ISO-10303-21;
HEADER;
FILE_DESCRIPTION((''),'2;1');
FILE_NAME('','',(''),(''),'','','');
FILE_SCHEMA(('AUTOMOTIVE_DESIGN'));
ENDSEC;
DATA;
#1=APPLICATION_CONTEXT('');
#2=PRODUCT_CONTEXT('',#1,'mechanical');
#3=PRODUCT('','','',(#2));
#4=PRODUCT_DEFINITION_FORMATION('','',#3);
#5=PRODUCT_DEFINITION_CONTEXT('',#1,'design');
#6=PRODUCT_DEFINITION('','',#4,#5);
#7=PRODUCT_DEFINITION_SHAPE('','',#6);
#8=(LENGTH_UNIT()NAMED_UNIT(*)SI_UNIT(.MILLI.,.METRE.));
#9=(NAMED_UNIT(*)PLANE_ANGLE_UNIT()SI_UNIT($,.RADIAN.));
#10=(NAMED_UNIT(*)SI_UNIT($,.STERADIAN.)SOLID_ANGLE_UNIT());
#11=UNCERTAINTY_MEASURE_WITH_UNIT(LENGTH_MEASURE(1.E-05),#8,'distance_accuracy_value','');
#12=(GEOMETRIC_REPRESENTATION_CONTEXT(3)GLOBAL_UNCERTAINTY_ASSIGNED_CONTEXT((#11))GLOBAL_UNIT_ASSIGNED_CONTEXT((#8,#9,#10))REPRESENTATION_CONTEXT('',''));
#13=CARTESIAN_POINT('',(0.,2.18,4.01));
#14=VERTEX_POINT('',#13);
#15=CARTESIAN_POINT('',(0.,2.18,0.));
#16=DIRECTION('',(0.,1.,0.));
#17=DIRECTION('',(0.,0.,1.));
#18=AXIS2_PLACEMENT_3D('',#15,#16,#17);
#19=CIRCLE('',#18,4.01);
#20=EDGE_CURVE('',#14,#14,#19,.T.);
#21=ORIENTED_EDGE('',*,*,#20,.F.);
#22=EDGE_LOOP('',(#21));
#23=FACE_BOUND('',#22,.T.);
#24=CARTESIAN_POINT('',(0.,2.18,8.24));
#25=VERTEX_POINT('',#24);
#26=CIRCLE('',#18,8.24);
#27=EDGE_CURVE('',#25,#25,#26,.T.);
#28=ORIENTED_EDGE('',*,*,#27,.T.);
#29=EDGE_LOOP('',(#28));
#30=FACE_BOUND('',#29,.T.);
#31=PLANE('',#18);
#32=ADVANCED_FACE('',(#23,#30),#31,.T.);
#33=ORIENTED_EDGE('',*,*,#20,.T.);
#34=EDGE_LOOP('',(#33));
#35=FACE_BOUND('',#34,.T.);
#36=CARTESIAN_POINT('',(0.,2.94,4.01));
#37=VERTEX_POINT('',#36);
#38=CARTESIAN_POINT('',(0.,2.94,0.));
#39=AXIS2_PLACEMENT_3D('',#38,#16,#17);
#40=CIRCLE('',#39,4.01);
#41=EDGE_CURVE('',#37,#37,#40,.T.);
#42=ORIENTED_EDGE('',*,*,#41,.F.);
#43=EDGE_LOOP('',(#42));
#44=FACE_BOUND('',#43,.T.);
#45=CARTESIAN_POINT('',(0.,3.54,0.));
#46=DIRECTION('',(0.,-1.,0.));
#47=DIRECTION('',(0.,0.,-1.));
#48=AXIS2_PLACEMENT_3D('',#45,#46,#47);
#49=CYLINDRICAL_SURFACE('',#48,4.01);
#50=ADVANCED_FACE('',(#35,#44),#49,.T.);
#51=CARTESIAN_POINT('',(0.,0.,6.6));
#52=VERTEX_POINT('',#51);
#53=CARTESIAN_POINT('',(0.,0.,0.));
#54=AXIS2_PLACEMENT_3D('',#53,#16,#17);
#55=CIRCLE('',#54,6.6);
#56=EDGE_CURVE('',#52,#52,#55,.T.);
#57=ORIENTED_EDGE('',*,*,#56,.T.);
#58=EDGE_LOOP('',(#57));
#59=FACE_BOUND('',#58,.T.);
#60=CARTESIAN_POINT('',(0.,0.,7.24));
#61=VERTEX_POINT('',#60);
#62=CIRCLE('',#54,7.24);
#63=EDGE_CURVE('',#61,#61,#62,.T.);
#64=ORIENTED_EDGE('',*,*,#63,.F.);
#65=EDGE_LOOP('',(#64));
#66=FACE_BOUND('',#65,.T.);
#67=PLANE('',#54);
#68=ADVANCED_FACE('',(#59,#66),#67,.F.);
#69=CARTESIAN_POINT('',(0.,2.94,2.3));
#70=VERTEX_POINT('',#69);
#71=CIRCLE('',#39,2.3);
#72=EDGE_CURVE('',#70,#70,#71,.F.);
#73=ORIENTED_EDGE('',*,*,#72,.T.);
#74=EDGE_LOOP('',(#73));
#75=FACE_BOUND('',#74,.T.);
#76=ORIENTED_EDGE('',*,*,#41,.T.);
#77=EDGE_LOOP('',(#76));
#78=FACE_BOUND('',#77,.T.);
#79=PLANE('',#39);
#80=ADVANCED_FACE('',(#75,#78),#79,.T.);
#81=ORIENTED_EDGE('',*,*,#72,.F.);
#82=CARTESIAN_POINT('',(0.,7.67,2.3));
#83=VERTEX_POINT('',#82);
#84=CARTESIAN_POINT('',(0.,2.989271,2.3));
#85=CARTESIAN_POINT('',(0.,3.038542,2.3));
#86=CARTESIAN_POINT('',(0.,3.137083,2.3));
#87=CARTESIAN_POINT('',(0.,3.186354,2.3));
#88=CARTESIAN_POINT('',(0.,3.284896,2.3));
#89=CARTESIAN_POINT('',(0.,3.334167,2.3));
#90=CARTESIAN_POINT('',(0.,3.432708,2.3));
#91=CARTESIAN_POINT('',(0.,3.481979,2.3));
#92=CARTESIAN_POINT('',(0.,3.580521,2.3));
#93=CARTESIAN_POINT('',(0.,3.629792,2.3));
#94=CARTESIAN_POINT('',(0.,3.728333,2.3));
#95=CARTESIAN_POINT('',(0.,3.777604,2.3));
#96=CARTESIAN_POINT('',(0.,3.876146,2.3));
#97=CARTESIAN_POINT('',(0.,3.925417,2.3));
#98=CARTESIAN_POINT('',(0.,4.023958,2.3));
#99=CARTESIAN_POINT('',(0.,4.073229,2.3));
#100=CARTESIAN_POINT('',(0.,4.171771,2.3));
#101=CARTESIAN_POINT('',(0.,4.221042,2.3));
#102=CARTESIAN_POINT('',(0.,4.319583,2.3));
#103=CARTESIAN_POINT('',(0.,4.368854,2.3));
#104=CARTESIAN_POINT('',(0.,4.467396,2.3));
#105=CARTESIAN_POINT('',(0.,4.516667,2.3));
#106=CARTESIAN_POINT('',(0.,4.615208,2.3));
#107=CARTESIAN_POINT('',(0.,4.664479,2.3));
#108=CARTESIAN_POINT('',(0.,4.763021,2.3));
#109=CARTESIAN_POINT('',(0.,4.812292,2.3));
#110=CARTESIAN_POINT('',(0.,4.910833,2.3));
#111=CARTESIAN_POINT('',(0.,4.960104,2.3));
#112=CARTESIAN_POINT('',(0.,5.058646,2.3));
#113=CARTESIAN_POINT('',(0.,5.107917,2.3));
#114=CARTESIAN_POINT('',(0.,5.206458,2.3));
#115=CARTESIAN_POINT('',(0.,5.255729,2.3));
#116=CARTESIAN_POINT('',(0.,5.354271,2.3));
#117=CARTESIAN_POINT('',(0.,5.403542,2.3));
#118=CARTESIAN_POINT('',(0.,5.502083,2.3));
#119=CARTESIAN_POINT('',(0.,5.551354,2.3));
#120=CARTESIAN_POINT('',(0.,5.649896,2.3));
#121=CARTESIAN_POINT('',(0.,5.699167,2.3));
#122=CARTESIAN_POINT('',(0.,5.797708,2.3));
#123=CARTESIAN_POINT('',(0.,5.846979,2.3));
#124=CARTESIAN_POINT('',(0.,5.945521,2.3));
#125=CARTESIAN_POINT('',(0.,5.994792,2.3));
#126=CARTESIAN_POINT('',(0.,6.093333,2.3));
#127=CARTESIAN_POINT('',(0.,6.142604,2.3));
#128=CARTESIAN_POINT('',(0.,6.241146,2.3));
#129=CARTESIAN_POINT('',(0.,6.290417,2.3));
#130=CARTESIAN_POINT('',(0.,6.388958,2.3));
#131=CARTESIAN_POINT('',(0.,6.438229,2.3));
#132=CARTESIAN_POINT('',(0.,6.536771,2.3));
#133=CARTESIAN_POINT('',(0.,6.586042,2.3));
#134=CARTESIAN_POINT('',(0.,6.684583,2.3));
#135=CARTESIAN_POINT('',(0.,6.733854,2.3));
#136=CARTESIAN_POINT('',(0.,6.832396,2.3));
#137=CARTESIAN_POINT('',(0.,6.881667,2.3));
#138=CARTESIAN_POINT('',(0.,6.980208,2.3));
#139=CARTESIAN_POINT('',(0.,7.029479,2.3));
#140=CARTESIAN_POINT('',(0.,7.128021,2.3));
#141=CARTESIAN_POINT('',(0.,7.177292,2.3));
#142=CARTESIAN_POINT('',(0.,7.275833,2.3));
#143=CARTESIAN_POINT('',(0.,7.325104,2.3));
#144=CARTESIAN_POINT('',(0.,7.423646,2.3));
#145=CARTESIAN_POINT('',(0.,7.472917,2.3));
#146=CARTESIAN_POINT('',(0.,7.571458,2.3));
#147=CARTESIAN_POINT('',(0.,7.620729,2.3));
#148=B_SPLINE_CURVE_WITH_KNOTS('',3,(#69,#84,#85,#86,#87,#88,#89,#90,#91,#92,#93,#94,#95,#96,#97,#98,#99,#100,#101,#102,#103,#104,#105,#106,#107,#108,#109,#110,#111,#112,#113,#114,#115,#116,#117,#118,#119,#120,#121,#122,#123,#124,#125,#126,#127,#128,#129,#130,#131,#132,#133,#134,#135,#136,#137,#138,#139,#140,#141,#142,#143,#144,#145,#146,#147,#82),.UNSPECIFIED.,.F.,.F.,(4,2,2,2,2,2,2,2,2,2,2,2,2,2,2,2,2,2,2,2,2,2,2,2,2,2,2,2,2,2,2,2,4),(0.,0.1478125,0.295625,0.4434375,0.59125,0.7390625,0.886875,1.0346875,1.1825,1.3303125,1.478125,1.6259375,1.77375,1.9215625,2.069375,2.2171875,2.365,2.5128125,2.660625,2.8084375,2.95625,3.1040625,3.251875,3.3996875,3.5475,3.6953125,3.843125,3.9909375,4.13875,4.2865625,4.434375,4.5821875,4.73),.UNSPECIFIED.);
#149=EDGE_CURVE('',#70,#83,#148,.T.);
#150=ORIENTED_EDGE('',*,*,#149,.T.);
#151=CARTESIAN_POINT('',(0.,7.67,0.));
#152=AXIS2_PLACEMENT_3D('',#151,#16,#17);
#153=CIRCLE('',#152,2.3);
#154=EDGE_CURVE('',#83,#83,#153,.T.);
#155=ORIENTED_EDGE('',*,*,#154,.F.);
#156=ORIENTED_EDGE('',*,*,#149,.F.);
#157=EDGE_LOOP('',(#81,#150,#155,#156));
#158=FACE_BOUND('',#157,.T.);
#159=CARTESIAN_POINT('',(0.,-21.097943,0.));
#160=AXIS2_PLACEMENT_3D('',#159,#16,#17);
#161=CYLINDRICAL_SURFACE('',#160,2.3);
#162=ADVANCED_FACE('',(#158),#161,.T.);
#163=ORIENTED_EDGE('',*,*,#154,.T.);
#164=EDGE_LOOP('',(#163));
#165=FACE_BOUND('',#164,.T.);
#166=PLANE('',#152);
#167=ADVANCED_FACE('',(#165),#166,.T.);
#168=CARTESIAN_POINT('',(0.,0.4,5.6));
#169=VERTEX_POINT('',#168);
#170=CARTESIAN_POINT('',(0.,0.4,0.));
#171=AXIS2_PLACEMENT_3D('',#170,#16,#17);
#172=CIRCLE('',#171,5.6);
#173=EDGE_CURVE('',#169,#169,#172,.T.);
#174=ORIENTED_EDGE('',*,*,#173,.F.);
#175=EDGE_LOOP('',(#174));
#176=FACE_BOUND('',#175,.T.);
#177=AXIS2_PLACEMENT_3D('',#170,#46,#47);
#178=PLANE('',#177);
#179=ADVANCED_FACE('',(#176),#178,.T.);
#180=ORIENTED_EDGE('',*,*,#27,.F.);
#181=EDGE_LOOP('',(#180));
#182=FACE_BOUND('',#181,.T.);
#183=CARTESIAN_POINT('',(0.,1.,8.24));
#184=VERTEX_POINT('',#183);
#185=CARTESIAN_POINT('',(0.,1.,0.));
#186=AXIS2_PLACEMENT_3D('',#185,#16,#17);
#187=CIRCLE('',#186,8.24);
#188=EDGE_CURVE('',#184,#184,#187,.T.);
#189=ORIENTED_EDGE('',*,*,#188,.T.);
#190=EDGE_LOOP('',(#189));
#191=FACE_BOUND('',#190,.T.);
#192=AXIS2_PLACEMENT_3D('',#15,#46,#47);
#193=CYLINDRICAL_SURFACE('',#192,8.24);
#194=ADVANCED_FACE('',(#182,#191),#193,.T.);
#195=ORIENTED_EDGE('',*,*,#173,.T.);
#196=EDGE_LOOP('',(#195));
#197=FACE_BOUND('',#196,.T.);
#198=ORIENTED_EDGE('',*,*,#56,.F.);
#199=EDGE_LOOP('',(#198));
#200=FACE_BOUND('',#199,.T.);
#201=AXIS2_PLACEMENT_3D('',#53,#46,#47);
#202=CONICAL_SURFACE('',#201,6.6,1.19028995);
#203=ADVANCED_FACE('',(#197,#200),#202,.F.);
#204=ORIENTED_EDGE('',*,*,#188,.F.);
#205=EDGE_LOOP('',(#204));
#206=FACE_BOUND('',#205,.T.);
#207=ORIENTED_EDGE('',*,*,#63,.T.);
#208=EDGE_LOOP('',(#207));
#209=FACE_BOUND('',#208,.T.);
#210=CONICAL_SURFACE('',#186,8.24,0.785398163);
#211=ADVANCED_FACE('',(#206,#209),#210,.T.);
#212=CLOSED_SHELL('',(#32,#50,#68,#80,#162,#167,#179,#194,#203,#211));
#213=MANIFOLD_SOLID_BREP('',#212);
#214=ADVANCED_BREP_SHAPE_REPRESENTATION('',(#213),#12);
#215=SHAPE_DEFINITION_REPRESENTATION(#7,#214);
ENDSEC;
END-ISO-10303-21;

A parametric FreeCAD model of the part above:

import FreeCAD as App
import Part
import Sketcher
from FreeCAD import Vector

doc = App.newDocument("Part")
body = doc.addObject("PartDesign::Body", "Body")

sketch1 = body.newObject("Sketcher::SketchObject", "Sketch")
sketch1.AttachmentSupport = (doc.getObject("XZ_Plane"), [""])
sketch1.MapMode = "FlatFace"
sketch1.addGeometry(Part.Circle(Vector(0, 0, 0), Vector(0, 0, 1), 8.24), False)
sketch1.addConstraint(Sketcher.Constraint("Coincident", 0, 3, -1, 1))
sketch1.addConstraint(Sketcher.Constraint("Diameter", 0, 16.48))
pad1 = body.newObject("PartDesign::Pad", "Pad")
pad1.Profile = sketch1
pad1.Length = 2.18
pad1.Reversed = True

sketch2 = body.newObject("Sketcher::SketchObject", "Sketch001")
sketch2.AttachmentSupport = (doc.getObject("XZ_Plane"), [""])
sketch2.MapMode = "FlatFace"
sketch2.AttachmentOffset = App.Placement(Vector(0, 0, -2.18), App.Rotation())
sketch2.addGeometry(Part.Circle(Vector(0, 0, 0), Vector(0, 0, 1), 4.01), False)
sketch2.addConstraint(Sketcher.Constraint("Coincident", 0, 3, -1, 1))
sketch2.addConstraint(Sketcher.Constraint("Diameter", 0, 8.02))
pad2 = body.newObject("PartDesign::Pad", "Pad001")
pad2.Profile = sketch2
pad2.Length = 1.36
pad2.Reversed = True

sketch3 = body.newObject("Sketcher::SketchObject", "Sketch002")
sketch3.AttachmentSupport = (doc.getObject("XZ_Plane"), [""])
sketch3.MapMode = "FlatFace"
sketch3.AttachmentOffset = App.Placement(Vector(0, 0, -3.54), App.Rotation())
sketch3.addGeometry(Part.Circle(Vector(0, 0, 0), Vector(0, 0, 1), 2.42), False)
sketch3.addConstraint(Sketcher.Constraint("Coincident", 0, 3, -1, 1))
sketch3.addConstraint(Sketcher.Constraint("Diameter", 0, 4.84))
pad3 = body.newObject("PartDesign::Pad", "Pad002")
pad3.Profile = sketch3
pad3.Length = 4.28
pad3.Reversed = True

sketch4 = body.newObject("Sketcher::SketchObject", "Sketch003")
sketch4.AttachmentSupport = (doc.getObject("XZ_Plane"), [""])
sketch4.MapMode = "FlatFace"
sketch4.addGeometry(Part.Circle(Vector(0, 0, 0), Vector(0, 0, 1), 5.6), False)
sketch4.addConstraint(Sketcher.Constraint("Coincident", 0, 3, -1, 1))
sketch4.addConstraint(Sketcher.Constraint("Diameter", 0, 11.2))
pocket1 = body.newObject("PartDesign::Pocket", "Pocket")
pocket1.Profile = sketch4
pocket1.Length = 0.4

sketch5 = body.newObject("Sketcher::SketchObject", "Sketch004")
sketch5.AttachmentSupport = (doc.getObject("XY_Plane"), [""])
sketch5.MapMode = "FlatFace"
sketch5.addGeometry(Part.LineSegment(Vector(6.6, 0, 0), Vector(5.6, 0.4, 0)), False)
sketch5.addGeometry(Part.LineSegment(Vector(5.6, 0.4, 0), Vector(5.6, 0, 0)), False)
sketch5.addGeometry(Part.LineSegment(Vector(5.6, 0, 0), Vector(6.6, 0, 0)), False)
sketch5.addConstraint(Sketcher.Constraint("Coincident", 0, 2, 1, 1))
sketch5.addConstraint(Sketcher.Constraint("Coincident", 1, 2, 2, 1))
sketch5.addConstraint(Sketcher.Constraint("Coincident", 2, 2, 0, 1))
sketch5.addConstraint(Sketcher.Constraint("Vertical", 1))
sketch5.addConstraint(Sketcher.Constraint("Horizontal", 2))
sketch5.addConstraint(Sketcher.Constraint("PointOnObject", 1, 2, -1))
sketch5.addConstraint(Sketcher.Constraint("DistanceX", 2, 1, 2, 2, 1.0))
sketch5.addConstraint(Sketcher.Constraint("DistanceY", 1, 2, 1, 1, 0.4))
sketch5.addConstraint(Sketcher.Constraint("DistanceX", -1, 1, 0, 2, 5.6))
groove = body.newObject("PartDesign::Groove", "Groove")
groove.Profile = sketch5
groove.ReferenceAxis = (sketch5, ["V_Axis"])
groove.Angle = 360

sketch6 = body.newObject("Sketcher::SketchObject", "Sketch005")
sketch6.AttachmentSupport = (doc.getObject("XY_Plane"), [""])
sketch6.MapMode = "FlatFace"
sketch6.addGeometry(Part.LineSegment(Vector(8.24, 0, 0), Vector(8.24, 1, 0)), False)
sketch6.addGeometry(Part.LineSegment(Vector(8.24, 1, 0), Vector(7.24, 0, 0)), False)
sketch6.addGeometry(Part.LineSegment(Vector(7.24, 0, 0), Vector(8.24, 0, 0)), False)
sketch6.addConstraint(Sketcher.Constraint("Coincident", 0, 2, 1, 1))
sketch6.addConstraint(Sketcher.Constraint("Coincident", 1, 2, 2, 1))
sketch6.addConstraint(Sketcher.Constraint("Coincident", 2, 2, 0, 1))
sketch6.addConstraint(Sketcher.Constraint("Vertical", 0))
sketch6.addConstraint(Sketcher.Constraint("Horizontal", 2))
sketch6.addConstraint(Sketcher.Constraint("PointOnObject", 1, 2, -1))
sketch6.addConstraint(Sketcher.Constraint("Equal", 2, 0))
sketch6.addConstraint(Sketcher.Constraint("DistanceX", 2, 1, 2, 2, 1.0))
sketch6.addConstraint(Sketcher.Constraint("DistanceX", -1, 1, 0, 2, 8.24))
groove2 = body.newObject("PartDesign::Groove", "Groove001")
groove2.Profile = sketch6
groove2.ReferenceAxis = (sketch6, ["V_Axis"])
groove2.Angle = 360

sketch7 = body.newObject("Sketcher::SketchObject", "Sketch006")
sketch7.AttachmentSupport = (doc.getObject("XZ_Plane"), [""])
sketch7.MapMode = "FlatFace"
sketch7.AttachmentOffset = App.Placement(Vector(0, 0, -2.94), App.Rotation())
sketch7.addGeometry(Part.Circle(Vector(0, 0, 0), Vector(0, 0, 1), 4.01), False)
sketch7.addGeometry(Part.Circle(Vector(0, 0, 0), Vector(0, 0, 1), 2.42), False)
sketch7.addConstraint(Sketcher.Constraint("Coincident", 0, 3, -1, 1))
sketch7.addConstraint(Sketcher.Constraint("Coincident", 1, 3, -1, 1))
sketch7.addConstraint(Sketcher.Constraint("Diameter", 0, 8.02))
sketch7.addConstraint(Sketcher.Constraint("Diameter", 1, 4.84))
pocket2 = body.newObject("PartDesign::Pocket", "Pocket001")
pocket2.Profile = sketch7
pocket2.Length = 0.6

sketch8 = body.newObject("Sketcher::SketchObject", "Sketch007")
sketch8.AttachmentSupport = (doc.getObject("XZ_Plane"), [""])
sketch8.MapMode = "FlatFace"
sketch8.AttachmentOffset = App.Placement(Vector(0, 0, -7.82), App.Rotation())
sketch8.addGeometry(Part.LineSegment(Vector(-11.698, -11.698, 0), Vector(-11.698, 11.698, 0)), False)
sketch8.addGeometry(Part.LineSegment(Vector(-11.698, 11.698, 0), Vector(11.698, 11.698, 0)), False)
sketch8.addGeometry(Part.LineSegment(Vector(11.698, 11.698, 0), Vector(11.698, -11.698, 0)), False)
sketch8.addGeometry(Part.LineSegment(Vector(11.698, -11.698, 0), Vector(-11.698, -11.698, 0)), False)
sketch8.addGeometry(Part.Circle(Vector(0, 0, 0), Vector(0, 0, 1), 2.3), False)
sketch8.addConstraint(Sketcher.Constraint("Coincident", 0, 2, 1, 1))
sketch8.addConstraint(Sketcher.Constraint("Coincident", 1, 2, 2, 1))
sketch8.addConstraint(Sketcher.Constraint("Coincident", 2, 2, 3, 1))
sketch8.addConstraint(Sketcher.Constraint("Coincident", 3, 2, 0, 1))
sketch8.addConstraint(Sketcher.Constraint("Vertical", 0))
sketch8.addConstraint(Sketcher.Constraint("Horizontal", 1))
sketch8.addConstraint(Sketcher.Constraint("Vertical", 2))
sketch8.addConstraint(Sketcher.Constraint("Horizontal", 3))
sketch8.addConstraint(Sketcher.Constraint("Coincident", 4, 3, -1, 1))
sketch8.addConstraint(Sketcher.Constraint("Symmetric", 0, 2, 2, 2, -1, 1))
sketch8.addConstraint(Sketcher.Constraint("Equal", 3, 0))
sketch8.addConstraint(Sketcher.Constraint("Diameter", 4, 4.6))
sketch8.addConstraint(Sketcher.Constraint("DistanceX", 1, 1, 1, 2, 23.396))
pocket3 = body.newObject("PartDesign::Pocket", "Pocket002")
pocket3.Profile = sketch8
pocket3.Length = 4.88
pocket3.Reversed = True

sketch9 = body.newObject("Sketcher::SketchObject", "Sketch008")
sketch9.AttachmentSupport = (doc.getObject("XZ_Plane"), [""])
sketch9.MapMode = "FlatFace"
sketch9.AttachmentOffset = App.Placement(Vector(0, 0, -7.82), App.Rotation())
sketch9.addGeometry(Part.Circle(Vector(0, 0, 0), Vector(0, 0, 1), 2.3), False)
sketch9.addConstraint(Sketcher.Constraint("Coincident", 0, 3, -1, 1))
sketch9.addConstraint(Sketcher.Constraint("Diameter", 0, 4.6))
pocket4 = body.newObject("PartDesign::Pocket", "Pocket003")
pocket4.Profile = sketch9
pocket4.Length = 0.15
pocket4.Reversed = True

doc.recompute()
